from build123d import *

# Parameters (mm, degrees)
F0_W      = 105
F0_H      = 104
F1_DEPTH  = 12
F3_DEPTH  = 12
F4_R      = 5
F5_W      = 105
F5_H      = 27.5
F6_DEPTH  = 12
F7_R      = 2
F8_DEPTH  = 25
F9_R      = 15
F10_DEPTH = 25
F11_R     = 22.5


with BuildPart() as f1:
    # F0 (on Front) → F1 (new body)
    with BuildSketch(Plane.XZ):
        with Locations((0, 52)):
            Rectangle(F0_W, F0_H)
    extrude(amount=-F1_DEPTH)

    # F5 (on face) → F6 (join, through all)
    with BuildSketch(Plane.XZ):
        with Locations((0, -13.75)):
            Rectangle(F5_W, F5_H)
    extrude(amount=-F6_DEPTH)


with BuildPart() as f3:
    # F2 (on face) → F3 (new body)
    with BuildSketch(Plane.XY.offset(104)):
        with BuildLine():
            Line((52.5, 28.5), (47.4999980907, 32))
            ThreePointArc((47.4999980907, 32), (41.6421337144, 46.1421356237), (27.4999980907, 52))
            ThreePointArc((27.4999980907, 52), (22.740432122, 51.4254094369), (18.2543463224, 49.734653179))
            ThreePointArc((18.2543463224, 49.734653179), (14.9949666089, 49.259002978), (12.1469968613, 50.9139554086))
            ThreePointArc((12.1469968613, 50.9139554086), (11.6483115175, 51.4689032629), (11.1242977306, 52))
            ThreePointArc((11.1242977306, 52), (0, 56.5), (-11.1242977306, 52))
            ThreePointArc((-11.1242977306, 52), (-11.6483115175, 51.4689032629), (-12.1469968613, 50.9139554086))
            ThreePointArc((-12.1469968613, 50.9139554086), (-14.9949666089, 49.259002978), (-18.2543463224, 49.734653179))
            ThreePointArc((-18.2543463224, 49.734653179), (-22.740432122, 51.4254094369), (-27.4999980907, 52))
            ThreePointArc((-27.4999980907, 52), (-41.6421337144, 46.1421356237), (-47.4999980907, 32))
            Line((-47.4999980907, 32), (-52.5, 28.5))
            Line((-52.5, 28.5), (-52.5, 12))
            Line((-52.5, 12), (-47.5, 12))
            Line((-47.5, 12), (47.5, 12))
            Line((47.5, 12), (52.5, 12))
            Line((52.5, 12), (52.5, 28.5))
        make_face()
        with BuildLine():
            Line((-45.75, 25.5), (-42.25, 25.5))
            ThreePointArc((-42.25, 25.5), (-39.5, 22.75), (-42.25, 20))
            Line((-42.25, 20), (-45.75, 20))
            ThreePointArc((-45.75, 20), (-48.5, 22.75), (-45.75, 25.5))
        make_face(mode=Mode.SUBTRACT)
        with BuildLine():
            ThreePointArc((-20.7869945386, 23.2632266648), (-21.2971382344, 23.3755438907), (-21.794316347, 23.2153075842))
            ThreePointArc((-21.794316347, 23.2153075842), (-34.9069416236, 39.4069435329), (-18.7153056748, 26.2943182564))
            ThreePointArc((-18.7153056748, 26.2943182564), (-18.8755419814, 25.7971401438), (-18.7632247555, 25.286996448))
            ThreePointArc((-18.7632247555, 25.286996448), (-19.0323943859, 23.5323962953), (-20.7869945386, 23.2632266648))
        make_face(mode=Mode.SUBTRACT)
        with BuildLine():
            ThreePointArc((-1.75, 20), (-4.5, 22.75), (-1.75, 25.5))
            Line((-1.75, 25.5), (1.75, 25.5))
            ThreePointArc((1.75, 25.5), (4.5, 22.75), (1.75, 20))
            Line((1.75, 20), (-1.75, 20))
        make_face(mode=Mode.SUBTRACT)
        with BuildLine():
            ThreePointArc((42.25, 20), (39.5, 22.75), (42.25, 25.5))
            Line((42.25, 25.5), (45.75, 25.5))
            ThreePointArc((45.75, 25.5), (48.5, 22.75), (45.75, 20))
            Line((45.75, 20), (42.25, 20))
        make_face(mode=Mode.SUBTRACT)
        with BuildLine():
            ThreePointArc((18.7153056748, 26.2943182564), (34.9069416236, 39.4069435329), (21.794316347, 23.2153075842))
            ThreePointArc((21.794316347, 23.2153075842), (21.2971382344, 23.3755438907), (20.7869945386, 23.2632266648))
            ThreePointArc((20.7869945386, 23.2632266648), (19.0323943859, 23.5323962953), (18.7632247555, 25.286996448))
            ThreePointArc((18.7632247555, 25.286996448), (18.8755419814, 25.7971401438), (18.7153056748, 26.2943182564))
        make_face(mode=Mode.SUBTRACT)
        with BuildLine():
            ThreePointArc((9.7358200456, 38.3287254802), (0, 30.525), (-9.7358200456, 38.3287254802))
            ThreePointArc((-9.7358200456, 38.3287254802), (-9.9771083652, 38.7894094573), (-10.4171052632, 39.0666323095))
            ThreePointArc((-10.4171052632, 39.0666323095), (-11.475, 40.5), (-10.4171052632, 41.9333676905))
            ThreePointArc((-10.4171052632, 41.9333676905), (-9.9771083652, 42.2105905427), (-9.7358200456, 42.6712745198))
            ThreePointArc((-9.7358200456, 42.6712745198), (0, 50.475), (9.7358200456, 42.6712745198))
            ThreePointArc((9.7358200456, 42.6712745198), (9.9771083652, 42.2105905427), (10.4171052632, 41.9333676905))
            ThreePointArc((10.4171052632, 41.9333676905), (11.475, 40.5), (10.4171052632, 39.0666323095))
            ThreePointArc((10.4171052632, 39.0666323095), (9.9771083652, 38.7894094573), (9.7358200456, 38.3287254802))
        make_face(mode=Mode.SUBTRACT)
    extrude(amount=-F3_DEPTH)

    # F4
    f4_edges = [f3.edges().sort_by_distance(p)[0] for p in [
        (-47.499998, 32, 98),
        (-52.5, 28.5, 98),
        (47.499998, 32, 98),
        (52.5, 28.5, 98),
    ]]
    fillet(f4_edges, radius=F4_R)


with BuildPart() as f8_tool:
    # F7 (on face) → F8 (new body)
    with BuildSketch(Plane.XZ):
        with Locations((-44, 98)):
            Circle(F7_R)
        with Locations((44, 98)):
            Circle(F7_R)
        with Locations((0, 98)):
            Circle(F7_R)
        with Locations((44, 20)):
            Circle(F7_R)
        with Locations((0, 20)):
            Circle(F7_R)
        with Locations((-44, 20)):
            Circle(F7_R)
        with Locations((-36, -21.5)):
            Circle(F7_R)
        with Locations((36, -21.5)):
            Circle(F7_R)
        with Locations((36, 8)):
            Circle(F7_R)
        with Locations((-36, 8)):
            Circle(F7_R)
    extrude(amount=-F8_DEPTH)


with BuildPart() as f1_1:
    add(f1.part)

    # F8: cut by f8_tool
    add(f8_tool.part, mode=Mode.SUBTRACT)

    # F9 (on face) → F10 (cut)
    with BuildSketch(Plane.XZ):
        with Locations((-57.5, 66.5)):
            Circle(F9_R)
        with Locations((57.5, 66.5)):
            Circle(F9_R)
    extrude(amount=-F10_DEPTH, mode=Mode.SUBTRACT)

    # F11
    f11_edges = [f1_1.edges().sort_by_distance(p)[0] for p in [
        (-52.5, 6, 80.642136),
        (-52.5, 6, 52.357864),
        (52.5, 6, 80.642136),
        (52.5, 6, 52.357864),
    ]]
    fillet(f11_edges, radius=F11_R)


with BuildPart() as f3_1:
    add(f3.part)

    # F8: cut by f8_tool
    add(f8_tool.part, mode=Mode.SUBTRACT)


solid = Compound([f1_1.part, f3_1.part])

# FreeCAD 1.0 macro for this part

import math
import FreeCAD as App
import Part
import Sketcher
Q = App.Units.Quantity


def edges_at(feature, points):
    """Names of the edges that pass closest to the given points."""
    edges = feature.Shape.Edges
    near = lambda p: min(range(len(edges)), key=lambda i: edges[i].distToShape(Part.Vertex(*p))[0])
    return sorted({f"Edge{near(p) + 1}" for p in points})

doc = App.newDocument("Part")
body = doc.addObject("PartDesign::Body", "Body")

sketch1 = doc.addObject("Sketcher::SketchObject", "Sketch")
body.addObject(sketch1)
sketch1.AttachmentSupport = (doc.XZ_Plane, [""])
sketch1.MapMode = "FlatFace"
sketch1.addGeometry(Part.LineSegment(App.Vector(-52, 104, 0), App.Vector(-52, 0, 0)), False)
sketch1.addGeometry(Part.LineSegment(App.Vector(-52, 0, 0), App.Vector(52, 0, 0)), False)
sketch1.addGeometry(Part.LineSegment(App.Vector(52, 0, 0), App.Vector(52, 104, 0)), False)
sketch1.addGeometry(Part.LineSegment(App.Vector(52, 104, 0), App.Vector(-52, 104, 0)), False)
sketch1.addConstraint(Sketcher.Constraint("Coincident", 0, 2, 1, 1))
sketch1.addConstraint(Sketcher.Constraint("Coincident", 1, 2, 2, 1))
sketch1.addConstraint(Sketcher.Constraint("Coincident", 2, 2, 3, 1))
sketch1.addConstraint(Sketcher.Constraint("Coincident", 3, 2, 0, 1))
sketch1.addConstraint(Sketcher.Constraint("Vertical", 0))
sketch1.addConstraint(Sketcher.Constraint("Horizontal", 1))
sketch1.addConstraint(Sketcher.Constraint("Vertical", 2))
sketch1.addConstraint(Sketcher.Constraint("Horizontal", 3))
sketch1.addConstraint(Sketcher.Constraint("Symmetric", 0, 2, 1, 2, -1, 1))
sketch1.addConstraint(Sketcher.Constraint("DistanceX", 1, 1, 1, 2, Q("105 mm")))
sketch1.addConstraint(Sketcher.Constraint("DistanceY", 0, 2, 0, 1, Q("104 mm")))
pad1 = doc.addObject("PartDesign::Pad", "Pad")
body.addObject(pad1)
pad1.Profile = sketch1
pad1.Length = 12
pad1.Reversed = True

sketch2 = doc.addObject("Sketcher::SketchObject", "Sketch001")
body.addObject(sketch2)
sketch2.AttachmentSupport = (doc.XZ_Plane, [""])
sketch2.MapMode = "FlatFace"
sketch2.addGeometry(Part.LineSegment(App.Vector(-52, 0, 0), App.Vector(-52, -28, 0)), False)
sketch2.addGeometry(Part.LineSegment(App.Vector(-52, -28, 0), App.Vector(52, -28, 0)), False)
sketch2.addGeometry(Part.LineSegment(App.Vector(52, -28, 0), App.Vector(52, 0, 0)), False)
sketch2.addGeometry(Part.LineSegment(App.Vector(52, 0, 0), App.Vector(-52, 0, 0)), False)
sketch2.addConstraint(Sketcher.Constraint("Coincident", 0, 2, 1, 1))
sketch2.addConstraint(Sketcher.Constraint("Coincident", 1, 2, 2, 1))
sketch2.addConstraint(Sketcher.Constraint("Coincident", 2, 2, 3, 1))
sketch2.addConstraint(Sketcher.Constraint("Coincident", 3, 2, 0, 1))
sketch2.addConstraint(Sketcher.Constraint("Vertical", 0))
sketch2.addConstraint(Sketcher.Constraint("Horizontal", 1))
sketch2.addConstraint(Sketcher.Constraint("Vertical", 2))
sketch2.addConstraint(Sketcher.Constraint("Horizontal", 3))
sketch2.addConstraint(Sketcher.Constraint("Symmetric", 2, 2, 3, 2, -1, 1))
sketch2.addConstraint(Sketcher.Constraint("DistanceX", 1, 1, 1, 2, Q("105 mm")))
sketch2.addConstraint(Sketcher.Constraint("DistanceY", 0, 2, 0, 1, Q("27.5 mm")))
pad2 = doc.addObject("PartDesign::Pad", "Pad001")
body.addObject(pad2)
pad2.Profile = sketch2
pad2.Length = 12
pad2.Reversed = True
body2 = doc.addObject("PartDesign::Body", "Body001")

sketch3 = doc.addObject("Sketcher::SketchObject", "Sketch002")
body2.addObject(sketch3)
sketch3.AttachmentSupport = (doc.getObject("XY_Plane001"), [""])
sketch3.MapMode = "FlatFace"
sketch3.AttachmentOffset = App.Placement(App.Vector(0, 0, 104), App.Rotation())
sketch3.addGeometry(Part.LineSegment(App.Vector(52.5, 28.5, 0), App.Vector(47.5, 32, 0)), False)
sketch3.addGeometry(Part.ArcOfCircle(Part.Circle(App.Vector(27.5, 32, 0), App.Vector(0, 0, 1), 20), math.radians(0), math.radians(90)), False)
sketch3.addGeometry(Part.ArcOfCircle(Part.Circle(App.Vector(27.5, 32, 0), App.Vector(0, 0, 1), 20), math.radians(90), math.radians(118)), False)
sketch3.addGeometry(Part.ArcOfCircle(Part.Circle(App.Vector(15.9, 54.2, 0), App.Vector(0, 0, 1), 5), math.radians(-139), math.radians(-62)), False)
sketch3.addGeometry(Part.ArcOfCircle(Part.Circle(App.Vector(0, 40.5, 0), App.Vector(0, 0, 1), 16), math.radians(40.61), math.radians(45.95)), False)
sketch3.addGeometry(Part.ArcOfCircle(Part.Circle(App.Vector(0, 40.5, 0), App.Vector(0, 0, 1), 16), math.radians(46), math.radians(134)), False)
sketch3.addGeometry(Part.ArcOfCircle(Part.Circle(App.Vector(0, 40.5, 0), App.Vector(0, 0, 1), 16), math.radians(134.05), math.radians(139.39)), False)
sketch3.addGeometry(Part.ArcOfCircle(Part.Circle(App.Vector(-15.9, 54.2, 0), App.Vector(0, 0, 1), 5), math.radians(-118), math.radians(-41)), False)
sketch3.addGeometry(Part.ArcOfCircle(Part.Circle(App.Vector(-27.5, 32, 0), App.Vector(0, 0, 1), 20), math.radians(62), math.radians(90)), False)
sketch3.addGeometry(Part.ArcOfCircle(Part.Circle(App.Vector(-27.5, 32, 0), App.Vector(0, 0, 1), 20), math.radians(90), math.radians(180)), False)
sketch3.addGeometry(Part.LineSegment(App.Vector(-47.5, 32, 0), App.Vector(-52.5, 28.5, 0)), False)
sketch3.addGeometry(Part.LineSegment(App.Vector(-52.5, 28.5, 0), App.Vector(-52.5, 12, 0)), False)
sketch3.addGeometry(Part.LineSegment(App.Vector(-52.5, 12, 0), App.Vector(52.5, 12, 0)), False)
sketch3.addGeometry(Part.LineSegment(App.Vector(52.5, 12, 0), App.Vector(52.5, 28.5, 0)), False)
sketch3.addGeometry(Part.ArcOfCircle(Part.Circle(App.Vector(-45.8, 22.8, 0), App.Vector(0, 0, 1), 2.8), math.radians(90), math.radians(270)), False)
sketch3.addGeometry(Part.LineSegment(App.Vector(-45.8, 25.5, 0), App.Vector(-42.2, 25.5, 0)), False)
sketch3.addGeometry(Part.ArcOfCircle(Part.Circle(App.Vector(-42.2, 22.8, 0), App.Vector(0, 0, 1), 2.8), math.radians(-90), math.radians(90)), False)
sketch3.addGeometry(Part.LineSegment(App.Vector(-42.2, 20, 0), App.Vector(-45.8, 20, 0)), False)
sketch3.addGeometry(Part.ArcOfCircle(Part.Circle(App.Vector(-20.1, 24.6, 0), App.Vector(0, 0, 1), 1.5), math.radians(-118), math.radians(28)), False)
sketch3.addGeometry(Part.ArcOfCircle(Part.Circle(App.Vector(-21.2, 22.4, 0), App.Vector(0, 0, 1), 1), math.radians(62), math.radians(123)), False)
sketch3.addGeometry(Part.ArcOfCircle(Part.Circle(App.Vector(-27.5, 32, 0), App.Vector(0, 0, 1), 10.5), math.radians(-33), math.radians(303)), False)
sketch3.addGeometry(Part.ArcOfCircle(Part.Circle(App.Vector(-17.9, 25.7, 0), App.Vector(0, 0, 1), 1), math.radians(147), math.radians(208)), False)
sketch3.addGeometry(Part.LineSegment(App.Vector(1.8, 20, 0), App.Vector(-1.8, 20, 0)), False)
sketch3.addGeometry(Part.ArcOfCircle(Part.Circle(App.Vector(-1.8, 22.8, 0), App.Vector(0, 0, 1), 2.8), math.radians(90), math.radians(270)), False)
sketch3.addGeometry(Part.LineSegment(App.Vector(-1.8, 25.5, 0), App.Vector(1.8, 25.5, 0)), False)
sketch3.addGeometry(Part.ArcOfCircle(Part.Circle(App.Vector(1.8, 22.8, 0), App.Vector(0, 0, 1), 2.8), math.radians(-90), math.radians(90)), False)
sketch3.addGeometry(Part.LineSegment(App.Vector(45.8, 20, 0), App.Vector(42.2, 20, 0)), False)
sketch3.addGeometry(Part.ArcOfCircle(Part.Circle(App.Vector(42.2, 22.8, 0), App.Vector(0, 0, 1), 2.8), math.radians(90), math.radians(270)), False)
sketch3.addGeometry(Part.LineSegment(App.Vector(42.2, 25.5, 0), App.Vector(45.8, 25.5, 0)), False)
sketch3.addGeometry(Part.ArcOfCircle(Part.Circle(App.Vector(45.8, 22.8, 0), App.Vector(0, 0, 1), 2.8), math.radians(-90), math.radians(90)), False)
sketch3.addGeometry(Part.ArcOfCircle(Part.Circle(App.Vector(17.9, 25.7, 0), App.Vector(0, 0, 1), 1), math.radians(-28), math.radians(33)), False)
sketch3.addGeometry(Part.ArcOfCircle(Part.Circle(App.Vector(27.5, 32, 0), App.Vector(0, 0, 1), 10.5), math.radians(-123), math.radians(213)), False)
sketch3.addGeometry(Part.ArcOfCircle(Part.Circle(App.Vector(21.2, 22.4, 0), App.Vector(0, 0, 1), 1), math.radians(57), math.radians(118)), False)
sketch3.addGeometry(Part.ArcOfCircle(Part.Circle(App.Vector(20.1, 24.6, 0), App.Vector(0, 0, 1), 1.5), math.radians(152), math.radians(298)), False)
sketch3.addGeometry(Part.ArcOfCircle(Part.Circle(App.Vector(10.7, 38.1, 0), App.Vector(0, 0, 1), 1), math.radians(107), math.radians(167)), False)
sketch3.addGeometry(Part.ArcOfCircle(Part.Circle(App.Vector(0, 40.5, 0), App.Vector(0, 0, 1), 10), math.radians(-167), math.radians(-13)), False)
sketch3.addGeometry(Part.ArcOfCircle(Part.Circle(App.Vector(-10.7, 38.1, 0), App.Vector(0, 0, 1), 1), math.radians(13), math.radians(73)), False)
sketch3.addGeometry(Part.ArcOfCircle(Part.Circle(App.Vector(-10, 40.5, 0), App.Vector(0, 0, 1), 1.5), math.radians(107), math.radians(253)), False)
sketch3.addGeometry(Part.ArcOfCircle(Part.Circle(App.Vector(-10.7, 42.9, 0), App.Vector(0, 0, 1), 1), math.radians(-73), math.radians(-13)), False)
sketch3.addGeometry(Part.ArcOfCircle(Part.Circle(App.Vector(0, 40.5, 0), App.Vector(0, 0, 1), 10), math.radians(13), math.radians(167)), False)
sketch3.addGeometry(Part.ArcOfCircle(Part.Circle(App.Vector(10.7, 42.9, 0), App.Vector(0, 0, 1), 1), math.radians(-167), math.radians(-107)), False)
sketch3.addGeometry(Part.ArcOfCircle(Part.Circle(App.Vector(10, 40.5, 0), App.Vector(0, 0, 1), 1.5), math.radians(-73), math.radians(73)), False)
sketch3.addConstraint(Sketcher.Constraint("Coincident", 0, 2, 1, 1))
sketch3.addConstraint(Sketcher.Constraint("Tangent", 1, 2, 2, 1))
sketch3.addConstraint(Sketcher.Constraint("Tangent", 2, 2, 3, 2))
sketch3.addConstraint(Sketcher.Constraint("Tangent", 3, 1, 4, 1))
sketch3.addConstraint(Sketcher.Constraint("Tangent", 4, 2, 5, 1))
sketch3.addConstraint(Sketcher.Constraint("Tangent", 5, 2, 6, 1))
sketch3.addConstraint(Sketcher.Constraint("Tangent", 6, 2, 7, 2))
sketch3.addConstraint(Sketcher.Constraint("Tangent", 7, 1, 8, 1))
sketch3.addConstraint(Sketcher.Constraint("Tangent", 8, 2, 9, 1))
sketch3.addConstraint(Sketcher.Constraint("Coincident", 9, 2, 10, 1))
sketch3.addConstraint(Sketcher.Constraint("Coincident", 10, 2, 11, 1))
sketch3.addConstraint(Sketcher.Constraint("Coincident", 11, 2, 12, 1))
sketch3.addConstraint(Sketcher.Constraint("Coincident", 12, 2, 13, 1))
sketch3.addConstraint(Sketcher.Constraint("Coincident", 13, 2, 0, 1))
sketch3.addConstraint(Sketcher.Constraint("Tangent", 14, 1, 15, 1))
sketch3.addConstraint(Sketcher.Constraint("Tangent", 15, 2, 16, 2))
sketch3.addConstraint(Sketcher.Constraint("Tangent", 16, 1, 17, 1))
sketch3.addConstraint(Sketcher.Constraint("Tangent", 17, 2, 14, 2))
sketch3.addConstraint(Sketcher.Constraint("Tangent", 18, 1, 19, 1))
sketch3.addConstraint(Sketcher.Constraint("Tangent", 19, 2, 20, 2))
sketch3.addConstraint(Sketcher.Constraint("Tangent", 20, 1, 21, 1))
sketch3.addConstraint(Sketcher.Constraint("Tangent", 21, 2, 18, 2))
sketch3.addConstraint(Sketcher.Constraint("Tangent", 22, 2, 23, 2))
sketch3.addConstraint(Sketcher.Constraint("Tangent", 23, 1, 24, 1))
sketch3.addConstraint(Sketcher.Constraint("Tangent", 24, 2, 25, 2))
sketch3.addConstraint(Sketcher.Constraint("Tangent", 25, 1, 22, 1))
sketch3.addConstraint(Sketcher.Constraint("Tangent", 26, 2, 27, 2))
sketch3.addConstraint(Sketcher.Constraint("Tangent", 27, 1, 28, 1))
sketch3.addConstraint(Sketcher.Constraint("Tangent", 28, 2, 29, 2))
sketch3.addConstraint(Sketcher.Constraint("Tangent", 29, 1, 26, 1))
sketch3.addConstraint(Sketcher.Constraint("Tangent", 30, 2, 31, 2))
sketch3.addConstraint(Sketcher.Constraint("Tangent", 31, 1, 32, 1))
sketch3.addConstraint(Sketcher.Constraint("Tangent", 32, 2, 33, 2))
sketch3.addConstraint(Sketcher.Constraint("Tangent", 33, 1, 30, 1))
sketch3.addConstraint(Sketcher.Constraint("Tangent", 34, 2, 35, 2))
sketch3.addConstraint(Sketcher.Constraint("Tangent", 35, 1, 36, 1))
sketch3.addConstraint(Sketcher.Constraint("Tangent", 36, 2, 37, 2))
sketch3.addConstraint(Sketcher.Constraint("Tangent", 37, 1, 38, 1))
sketch3.addConstraint(Sketcher.Constraint("Tangent", 38, 2, 39, 2))
sketch3.addConstraint(Sketcher.Constraint("Tangent", 39, 1, 40, 1))
sketch3.addConstraint(Sketcher.Constraint("Tangent", 40, 2, 41, 2))
sketch3.addConstraint(Sketcher.Constraint("Tangent", 41, 1, 34, 1))
sketch3.addConstraint(Sketcher.Constraint("Vertical", 11))
sketch3.addConstraint(Sketcher.Constraint("Horizontal", 12))
sketch3.addConstraint(Sketcher.Constraint("Vertical", 13))
sketch3.addConstraint(Sketcher.Constraint("Horizontal", 15))
sketch3.addConstraint(Sketcher.Constraint("Horizontal", 17))
sketch3.addConstraint(Sketcher.Constraint("Horizontal", 22))
sketch3.addConstraint(Sketcher.Constraint("Horizontal", 24))
sketch3.addConstraint(Sketcher.Constraint("Horizontal", 26))
sketch3.addConstraint(Sketcher.Constraint("Horizontal", 28))
sketch3.addConstraint(Sketcher.Constraint("Coincident", 6, 3, 4, 3))
sketch3.addConstraint(Sketcher.Constraint("Coincident", 20, 3, 8, 3))
sketch3.addConstraint(Sketcher.Constraint("Coincident", 31, 3, 1, 3))
sketch3.addConstraint(Sketcher.Constraint("Coincident", 35, 3, 4, 3))
sketch3.addConstraint(Sketcher.Constraint("Coincident", 39, 3, 4, 3))
sketch3.addConstraint(Sketcher.Constraint("Equal", 1, 2))
sketch3.addConstraint(Sketcher.Constraint("Equal", 3, 7))
sketch3.addConstraint(Sketcher.Constraint("Equal", 2, 8))
sketch3.addConstraint(Sketcher.Constraint("Equal", 8, 9))
sketch3.addConstraint(Sketcher.Constraint("Equal", 19, 21))
sketch3.addConstraint(Sketcher.Constraint("Equal", 16, 23))
sketch3.addConstraint(Sketcher.Constraint("Equal", 25, 27))
sketch3.addConstraint(Sketcher.Constraint("Equal", 21, 30))
sketch3.addConstraint(Sketcher.Constraint("Equal", 20, 31))
sketch3.addConstraint(Sketcher.Constraint("Equal", 30, 32))
sketch3.addConstraint(Sketcher.Constraint("Equal", 18, 33))
sketch3.addConstraint(Sketcher.Constraint("Equal", 32, 34))
sketch3.addConstraint(Sketcher.Constraint("Equal", 34, 36))
sketch3.addConstraint(Sketcher.Constraint("Equal", 33, 37))
sketch3.addConstraint(Sketcher.Constraint("Equal", 36, 38))
sketch3.addConstraint(Sketcher.Constraint("Equal", 35, 39))
sketch3.addConstraint(Sketcher.Constraint("Equal", 38, 40))
sketch3.addConstraint(Sketcher.Constraint("Equal", 37, 41))
sketch3.addConstraint(Sketcher.Constraint("Symmetric", 3, 3, 7, 3, -2))
sketch3.addConstraint(Sketcher.Constraint("Symmetric", 16, 3, 27, 3, -2))
sketch3.addConstraint(Sketcher.Constraint("Symmetric", 21, 3, 30, 3, -2))
sketch3.addConstraint(Sketcher.Constraint("Symmetric", 37, 3, 41, 3, -2))
sketch3.addConstraint(Sketcher.Constraint("Symmetric", 10, 2, 13, 2, -2))
sketch3.addConstraint(Sketcher.Constraint("Horizontal", 16, 3, 23, 3))
sketch3.addConstraint(Sketcher.Constraint("Horizontal", 19, 3, 32, 3))
sketch3.addConstraint(Sketcher.Constraint("Horizontal", 35, 3, 37, 3))
sketch3.addConstraint(Sketcher.Constraint("Horizontal", 31, 3, 0, 2))
sketch3.addConstraint(Sketcher.Constraint("Horizontal", 1, 2, 4, 2))
sketch3.addConstraint(Sketcher.Constraint("Horizontal", 4, 2, 5, 2))
sketch3.addConstraint(Sketcher.Constraint("Horizontal", 0, 2, 9, 2))
sketch3.addConstraint(Sketcher.Constraint("Vertical", 31, 3, 1, 2))
sketch3.addConstraint(Sketcher.Constraint("Vertical", 20, 3, 8, 2))
sketch3.addConstraint(Sketcher.Constraint("Equal", 17, 22))
sketch3.addConstraint(Sketcher.Constraint("Equal", 24, 26))
sketch3.addConstraint(Sketcher.Constraint("Radius", 1, Q("20 mm")))
sketch3.addConstraint(Sketcher.Constraint("Radius", 3, Q("5 mm")))
sketch3.addConstraint(Sketcher.Constraint("Radius", 4, Q("16 mm")))
sketch3.addConstraint(Sketcher.Constraint("Radius", 19, Q("1 mm")))
sketch3.addConstraint(Sketcher.Constraint("Radius", 18, Q("1.5 mm")))
sketch3.addConstraint(Sketcher.Constraint("DistanceX", 12, 1, 12, 2, Q("105 mm")))
sketch3.addConstraint(Sketcher.Constraint("Radius", 14, Q("2.75 mm")))
sketch3.addConstraint(Sketcher.Constraint("DistanceX", 15, 1, 15, 2, Q("3.5 mm")))
sketch3.addConstraint(Sketcher.Constraint("DistanceY", 11, 2, 11, 1, Q("16.5 mm")))
sketch3.addConstraint(Sketcher.Constraint("DistanceY", -1, 1, 1, 3, Q("32 mm")))
sketch3.addConstraint(Sketcher.Constraint("DistanceY", -1, 1, 11, 2, Q("12 mm")))
sketch3.addConstraint(Sketcher.Constraint("DistanceY", -1, 1, 16, 1, Q("20 mm")))
sketch3.addConstraint(Sketcher.Constraint("Radius", 20, Q("10.475 mm")))
sketch3.addConstraint(Sketcher.Constraint("Radius", 35, Q("9.975 mm")))
sketch3.addConstraint(Sketcher.Constraint("DistanceX", -1, 1, 1, 3, Q("27.499998 mm")))
sketch3.addConstraint(Sketcher.Constraint("DistanceY", -1, 1, 4, 3, Q("40.5 mm")))
sketch3.addConstraint(Sketcher.Constraint("DistanceX", 14, 3, -1, 1, Q("45.75 mm")))
sketch3.addConstraint(Sketcher.Constraint("DistanceX", 23, 3, -1, 1, Q("1.75 mm")))
sketch3.addConstraint(Sketcher.Constraint("DistanceX", 37, 3, -1, 1, Q("9.975 mm")))
sketch3.addConstraint(Sketcher.Constraint("DistanceX", 19, 3, -1, 1, Q("21.249621 mm")))
sketch3.addConstraint(Sketcher.Constraint("DistanceX", 21, 3, -1, 1, Q("17.876672 mm")))
pad3 = doc.addObject("PartDesign::Pad", "Pad002")
body2.addObject(pad3)
pad3.Profile = sketch3
pad3.Length = 12
pad3.Reversed = True
doc.recompute()

fillet = doc.addObject("PartDesign::Fillet", "Fillet")
body2.addObject(fillet)
fillet.Base = (pad3, edges_at(pad3, [
    (-47.5, 32, 98),
    (-52.5, 28.5, 98),
    (47.5, 32, 98),
    (52.5, 28.5, 98),
]))
fillet.Radius = 5
body3 = doc.addObject("PartDesign::Body", "Body002")
body3.AllowCompound = True

sketch4 = doc.addObject("Sketcher::SketchObject", "Sketch003")
body3.addObject(sketch4)
sketch4.AttachmentSupport = (doc.getObject("XZ_Plane002"), [""])
sketch4.MapMode = "FlatFace"
sketch4.addGeometry(Part.Circle(App.Vector(-44, 98, 0), App.Vector(0, 0, 1), 2), False)
sketch4.addGeometry(Part.Circle(App.Vector(44, 98, 0), App.Vector(0, 0, 1), 2), False)
sketch4.addGeometry(Part.Circle(App.Vector(0, 98, 0), App.Vector(0, 0, 1), 2), False)
sketch4.addGeometry(Part.Circle(App.Vector(44, 20, 0), App.Vector(0, 0, 1), 2), False)
sketch4.addGeometry(Part.Circle(App.Vector(0, 20, 0), App.Vector(0, 0, 1), 2), False)
sketch4.addGeometry(Part.Circle(App.Vector(-44, 20, 0), App.Vector(0, 0, 1), 2), False)
sketch4.addGeometry(Part.Circle(App.Vector(-36, -21.5, 0), App.Vector(0, 0, 1), 2), False)
sketch4.addGeometry(Part.Circle(App.Vector(36, -21.5, 0), App.Vector(0, 0, 1), 2), False)
sketch4.addGeometry(Part.Circle(App.Vector(36, 8, 0), App.Vector(0, 0, 1), 2), False)
sketch4.addGeometry(Part.Circle(App.Vector(-36, 8, 0), App.Vector(0, 0, 1), 2), False)
sketch4.addConstraint(Sketcher.Constraint("Equal", 0, 1))
sketch4.addConstraint(Sketcher.Constraint("Equal", 1, 2))
sketch4.addConstraint(Sketcher.Constraint("Equal", 2, 3))
sketch4.addConstraint(Sketcher.Constraint("Equal", 3, 4))
sketch4.addConstraint(Sketcher.Constraint("Equal", 4, 5))
sketch4.addConstraint(Sketcher.Constraint("Equal", 5, 6))
sketch4.addConstraint(Sketcher.Constraint("Equal", 6, 7))
sketch4.addConstraint(Sketcher.Constraint("Equal", 7, 8))
sketch4.addConstraint(Sketcher.Constraint("Equal", 8, 9))
sketch4.addConstraint(Sketcher.Constraint("Symmetric", 0, 3, 1, 3, -2))
sketch4.addConstraint(Sketcher.Constraint("Symmetric", 3, 3, 5, 3, -2))
sketch4.addConstraint(Sketcher.Constraint("Symmetric", 6, 3, 7, 3, -2))
sketch4.addConstraint(Sketcher.Constraint("Symmetric", 8, 3, 9, 3, -2))
sketch4.addConstraint(Sketcher.Constraint("PointOnObject", 2, 3, -2))
sketch4.addConstraint(Sketcher.Constraint("PointOnObject", 4, 3, -2))
sketch4.addConstraint(Sketcher.Constraint("Horizontal", 1, 3, 2, 3))
sketch4.addConstraint(Sketcher.Constraint("Horizontal", 3, 3, 4, 3))
sketch4.addConstraint(Sketcher.Constraint("Vertical", 1, 3, 3, 3))
sketch4.addConstraint(Sketcher.Constraint("Vertical", 7, 3, 8, 3))
sketch4.addConstraint(Sketcher.Constraint("Diameter", 0, Q("4 mm")))
sketch4.addConstraint(Sketcher.Constraint("DistanceX", 0, 3, -1, 1, Q("44 mm")))
sketch4.addConstraint(Sketcher.Constraint("DistanceY", -1, 1, 0, 3, Q("98 mm")))
sketch4.addConstraint(Sketcher.Constraint("DistanceY", -1, 1, 3, 3, Q("20 mm")))
sketch4.addConstraint(Sketcher.Constraint("DistanceX", 6, 3, -1, 1, Q("36 mm")))
sketch4.addConstraint(Sketcher.Constraint("DistanceY", -1, 1, 8, 3, Q("8 mm")))
sketch4.addConstraint(Sketcher.Constraint("DistanceY", 6, 3, -1, 1, Q("21.5 mm")))
pad4 = doc.addObject("PartDesign::Pad", "Pad003")
body3.addObject(pad4)
pad4.Profile = sketch4
pad4.Length = 25
pad4.Reversed = True
doc.recompute()

body4 = doc.addObject("PartDesign::Body", "Body003")
body4.BaseFeature = body3
boolean = doc.addObject("PartDesign::Boolean", "Boolean")
body.addObject(boolean)
boolean.Type = "Cut"
boolean.addObjects([body4])
doc.recompute()

sketch5 = doc.addObject("Sketcher::SketchObject", "Sketch004")
body.addObject(sketch5)
sketch5.AttachmentSupport = (doc.XZ_Plane, [""])
sketch5.MapMode = "FlatFace"
sketch5.addGeometry(Part.Circle(App.Vector(-58, 66, 0), App.Vector(0, 0, 1), 15), False)
sketch5.addGeometry(Part.Circle(App.Vector(58, 66, 0), App.Vector(0, 0, 1), 15), False)
sketch5.addConstraint(Sketcher.Constraint("Equal", 0, 1))
sketch5.addConstraint(Sketcher.Constraint("Symmetric", 0, 3, 1, 3, -2))
sketch5.addConstraint(Sketcher.Constraint("Diameter", 0, Q("30 mm")))
sketch5.addConstraint(Sketcher.Constraint("DistanceX", 0, 3, 1, 3, Q("115 mm")))
sketch5.addConstraint(Sketcher.Constraint("DistanceY", -1, 1, 0, 3, Q("66.5 mm")))
pocket1 = doc.addObject("PartDesign::Pocket", "Pocket")
body.addObject(pocket1)
pocket1.Profile = sketch5
pocket1.Length = 25
doc.recompute()

fillet2 = doc.addObject("PartDesign::Fillet", "Fillet001")
body.addObject(fillet2)
fillet2.Base = (pocket1, edges_at(pocket1, [
    (-52.5, 6, 80.642),
    (-52.5, 6, 52.358),
    (52.5, 6, 80.642),
    (52.5, 6, 52.358),
]))
fillet2.Radius = 22.5
doc.recompute()

boolean2 = doc.addObject("PartDesign::Boolean", "Boolean001")
body2.addObject(boolean2)
boolean2.Type = "Cut"
boolean2.addObjects([body3])

doc.recompute()
